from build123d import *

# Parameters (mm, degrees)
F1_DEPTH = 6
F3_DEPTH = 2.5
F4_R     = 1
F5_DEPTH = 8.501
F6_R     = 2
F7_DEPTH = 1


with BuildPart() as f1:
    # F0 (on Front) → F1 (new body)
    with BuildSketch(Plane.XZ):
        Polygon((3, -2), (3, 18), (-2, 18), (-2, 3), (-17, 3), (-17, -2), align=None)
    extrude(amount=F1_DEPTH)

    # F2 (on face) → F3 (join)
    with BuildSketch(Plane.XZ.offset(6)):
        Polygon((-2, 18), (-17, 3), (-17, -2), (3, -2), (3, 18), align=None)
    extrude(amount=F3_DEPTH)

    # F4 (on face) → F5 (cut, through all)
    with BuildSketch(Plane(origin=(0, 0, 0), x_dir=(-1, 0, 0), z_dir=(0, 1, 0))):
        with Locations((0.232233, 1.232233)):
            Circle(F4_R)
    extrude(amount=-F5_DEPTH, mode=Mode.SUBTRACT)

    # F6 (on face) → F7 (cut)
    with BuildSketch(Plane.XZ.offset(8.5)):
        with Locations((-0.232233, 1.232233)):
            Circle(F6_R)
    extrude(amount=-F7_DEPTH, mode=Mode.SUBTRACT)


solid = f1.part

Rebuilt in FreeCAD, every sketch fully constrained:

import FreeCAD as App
import Part
import Sketcher
from FreeCAD import Vector

doc = App.newDocument("Part")
body = doc.addObject("PartDesign::Body", "Body")

sketch1 = body.newObject("Sketcher::SketchObject", "Sketch")
sketch1.AttachmentSupport = (doc.getObject("XZ_Plane"), [""])
sketch1.MapMode = "FlatFace"
sketch1.addGeometry([
    Part.LineSegment(Vector(3, -2, 0), Vector(3, 18, 0)),
    Part.LineSegment(Vector(3, 18, 0), Vector(-2, 18, 0)),
    Part.LineSegment(Vector(-2, 18, 0), Vector(-2, 3, 0)),
    Part.LineSegment(Vector(-2, 3, 0), Vector(-17, 3, 0)),
    Part.LineSegment(Vector(-17, 3, 0), Vector(-17, -2, 0)),
    Part.LineSegment(Vector(-17, -2, 0), Vector(3, -2, 0)),
], False)
sketch1.addConstraint([
    Sketcher.Constraint("Coincident", 0, 2, 1, 1),
    Sketcher.Constraint("Coincident", 1, 2, 2, 1),
    Sketcher.Constraint("Coincident", 2, 2, 3, 1),
    Sketcher.Constraint("Coincident", 3, 2, 4, 1),
    Sketcher.Constraint("Coincident", 4, 2, 5, 1),
    Sketcher.Constraint("Coincident", 5, 2, 0, 1),
    Sketcher.Constraint("Vertical", 0),
    Sketcher.Constraint("Horizontal", 1),
    Sketcher.Constraint("Vertical", 2),
    Sketcher.Constraint("Horizontal", 3),
    Sketcher.Constraint("Vertical", 4),
    Sketcher.Constraint("Horizontal", 5),
    Sketcher.Constraint("Equal", 5, 0),
    Sketcher.Constraint("Equal", 3, 2),
    Sketcher.Constraint("DistanceX", 1, 2, 1, 1, 5.0),
    Sketcher.Constraint("DistanceX", 3, 2, 3, 1, 15.0),
    Sketcher.Constraint("DistanceX", -1, 1, 0, 2, 3.0),
    Sketcher.Constraint("DistanceY", -1, 1, 0, 2, 18.0),
])
pad1 = body.newObject("PartDesign::Pad", "Pad")
pad1.Profile = sketch1
pad1.Length = 6

sketch2 = body.newObject("Sketcher::SketchObject", "Sketch001")
sketch2.AttachmentSupport = (doc.getObject("XZ_Plane"), [""])
sketch2.MapMode = "FlatFace"
sketch2.AttachmentOffset = App.Placement(Vector(0, 0, 6), App.Rotation())
sketch2.addGeometry([
    Part.LineSegment(Vector(-2, 18, 0), Vector(-17, 3, 0)),
    Part.LineSegment(Vector(-17, 3, 0), Vector(-17, -2, 0)),
    Part.LineSegment(Vector(-17, -2, 0), Vector(3, -2, 0)),
    Part.LineSegment(Vector(3, -2, 0), Vector(3, 18, 0)),
    Part.LineSegment(Vector(3, 18, 0), Vector(-2, 18, 0)),
], False)
sketch2.addConstraint([
    Sketcher.Constraint("Coincident", 0, 2, 1, 1),
    Sketcher.Constraint("Coincident", 1, 2, 2, 1),
    Sketcher.Constraint("Coincident", 2, 2, 3, 1),
    Sketcher.Constraint("Coincident", 3, 2, 4, 1),
    Sketcher.Constraint("Coincident", 4, 2, 0, 1),
    Sketcher.Constraint("Vertical", 1),
    Sketcher.Constraint("Horizontal", 2),
    Sketcher.Constraint("Vertical", 3),
    Sketcher.Constraint("Horizontal", 4),
    Sketcher.Constraint("Equal", 4, 1),
    Sketcher.Constraint("Equal", 2, 3),
    Sketcher.Constraint("DistanceX", 2, 1, 2, 2, 20.0),
    Sketcher.Constraint("DistanceX", 4, 2, 4, 1, 5.0),
    Sketcher.Constraint("DistanceX", 0, 2, -1, 1, 17.0),
    Sketcher.Constraint("DistanceY", -1, 1, 0, 2, 3.0),
])
pad2 = body.newObject("PartDesign::Pad", "Pad001")
pad2.Profile = sketch2
pad2.Length = 2.5

sketch3 = body.newObject("Sketcher::SketchObject", "Sketch002")
sketch3.AttachmentSupport = (doc.getObject("XZ_Plane"), [""])
sketch3.MapMode = "FlatFace"
sketch3.addGeometry(Part.Circle(Vector(-0.2, 1.2, 0), Vector(0, 0, 1), 1), False)
sketch3.addConstraint([
    Sketcher.Constraint("Diameter", 0, 2.0),
    Sketcher.Constraint("DistanceX", 0, 3, -1, 1, 0.232233),
    Sketcher.Constraint("DistanceY", -1, 1, 0, 3, 1.232233),
])
pocket1 = body.newObject("PartDesign::Pocket", "Pocket")
pocket1.Profile = sketch3
pocket1.Type = "ThroughAll"
pocket1.Reversed = True

sketch4 = body.newObject("Sketcher::SketchObject", "Sketch003")
sketch4.AttachmentSupport = (doc.getObject("XZ_Plane"), [""])
sketch4.MapMode = "FlatFace"
sketch4.AttachmentOffset = App.Placement(Vector(0, 0, 8.5), App.Rotation())
sketch4.addGeometry(Part.Circle(Vector(-0.2, 1.2, 0), Vector(0, 0, 1), 2), False)
sketch4.addConstraint([
    Sketcher.Constraint("Diameter", 0, 4.0),
    Sketcher.Constraint("DistanceX", 0, 3, -1, 1, 0.232233),
    Sketcher.Constraint("DistanceY", -1, 1, 0, 3, 1.232233),
])
pocket2 = body.newObject("PartDesign::Pocket", "Pocket001")
pocket2.Profile = sketch4
pocket2.Length = 1

doc.recompute()
